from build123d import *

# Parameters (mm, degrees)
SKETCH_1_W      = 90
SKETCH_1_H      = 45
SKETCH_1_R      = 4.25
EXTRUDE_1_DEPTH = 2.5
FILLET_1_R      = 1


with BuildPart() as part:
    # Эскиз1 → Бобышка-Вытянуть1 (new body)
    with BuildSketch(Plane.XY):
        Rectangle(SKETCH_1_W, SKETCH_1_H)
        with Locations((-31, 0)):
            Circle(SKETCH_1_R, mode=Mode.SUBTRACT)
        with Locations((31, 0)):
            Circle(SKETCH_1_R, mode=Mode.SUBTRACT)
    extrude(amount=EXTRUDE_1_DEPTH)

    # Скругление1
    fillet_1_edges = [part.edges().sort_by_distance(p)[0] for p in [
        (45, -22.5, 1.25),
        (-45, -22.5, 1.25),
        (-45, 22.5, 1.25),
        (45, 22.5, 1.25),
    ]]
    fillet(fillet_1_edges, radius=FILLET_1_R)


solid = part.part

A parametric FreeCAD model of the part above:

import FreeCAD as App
import Part
import Sketcher
from FreeCAD import Vector


def edges_at(feature, points):
    """Names of the edges that pass closest to the given points."""
    edges = feature.Shape.Edges
    near = lambda p: min(range(len(edges)), key=lambda i: edges[i].distToShape(Part.Vertex(*p))[0])
    return sorted({f"Edge{near(p) + 1}" for p in points})

doc = App.newDocument("Part")
params = doc.addObject("Spreadsheet::Sheet", "Params")
for row, (alias, value) in enumerate([
    ("sketch1_diameter", "8.5 mm"),
    ("sketch1_width", "90 mm"),
    ("sketch1_height", "45 mm"),
    ("pad1_length", "2.5 mm"),
    ("fillet_radius", "1 mm"),
], start=1):
    params.set(f"A{row}", alias)
    params.set(f"B{row}", "=" + value)
    params.setAlias(f"B{row}", alias)

body = doc.addObject("PartDesign::Body", "Body")

# Sketch on XY plane
sketch1 = doc.addObject("Sketcher::SketchObject", "Sketch")
body.addObject(sketch1)
sketch1.AttachmentSupport = (doc.XY_Plane, [""])
sketch1.MapMode = "FlatFace"
sketch1.addGeometry([
    Part.LineSegment(Vector(-45, 22.5, 0), Vector(-45, -22.5, 0)),  # 0
    Part.LineSegment(Vector(-45, -22.5, 0), Vector(45, -22.5, 0)),  # 1
    Part.LineSegment(Vector(45, -22.5, 0), Vector(45, 22.5, 0)),  # 2
    Part.LineSegment(Vector(45, 22.5, 0), Vector(-45, 22.5, 0)),  # 3
    Part.Circle(Vector(-31, 0, 0), Vector(0, 0, 1), 4.2),  # 4
    Part.Circle(Vector(31, 0, 0), Vector(0, 0, 1), 4.2),  # 5
], False)
sketch1.addConstraint([
    Sketcher.Constraint("Coincident", 0, 2, 1, 1),
    Sketcher.Constraint("Coincident", 1, 2, 2, 1),
    Sketcher.Constraint("Coincident", 2, 2, 3, 1),
    Sketcher.Constraint("Coincident", 3, 2, 0, 1),
    Sketcher.Constraint("Vertical", 0),
    Sketcher.Constraint("Horizontal", 1),
    Sketcher.Constraint("Vertical", 2),
    Sketcher.Constraint("Horizontal", 3),
    Sketcher.Constraint("Equal", 4, 5),
    Sketcher.Constraint("Symmetric", 4, 3, 5, 3, -1, 1),
    Sketcher.Constraint("Symmetric", 0, 2, 2, 2, -1, 1),
    Sketcher.Constraint("PointOnObject", 4, 3, -1),
    Sketcher.Constraint("Diameter", 4, 8.5),
    Sketcher.Constraint("DistanceX", 1, 1, 1, 2, 90.0),
    Sketcher.Constraint("DistanceY", 0, 2, 0, 1, 45.0),
    Sketcher.Constraint("DistanceX", 4, 3, -1, 1, 31.0),
])
sketch1.setExpression("Constraints[12]", "Params.sketch1_diameter")
sketch1.setExpression("Constraints[13]", "Params.sketch1_width")
sketch1.setExpression("Constraints[14]", "Params.sketch1_height")
pad1 = doc.addObject("PartDesign::Pad", "Pad")
body.addObject(pad1)
pad1.Profile = sketch1
pad1.setExpression("Length", "Params.pad1_length")
doc.recompute()

fillet = doc.addObject("PartDesign::Fillet", "Fillet")
body.addObject(fillet)
fillet.Base = (pad1, edges_at(pad1, [
    (45, -22.5, 1.25),
    (-45, -22.5, 1.25),
    (-45, 22.5, 1.25),
    (45, 22.5, 1.25),
]))
fillet.setExpression("Radius", "Params.fillet_radius")

doc.recompute()
